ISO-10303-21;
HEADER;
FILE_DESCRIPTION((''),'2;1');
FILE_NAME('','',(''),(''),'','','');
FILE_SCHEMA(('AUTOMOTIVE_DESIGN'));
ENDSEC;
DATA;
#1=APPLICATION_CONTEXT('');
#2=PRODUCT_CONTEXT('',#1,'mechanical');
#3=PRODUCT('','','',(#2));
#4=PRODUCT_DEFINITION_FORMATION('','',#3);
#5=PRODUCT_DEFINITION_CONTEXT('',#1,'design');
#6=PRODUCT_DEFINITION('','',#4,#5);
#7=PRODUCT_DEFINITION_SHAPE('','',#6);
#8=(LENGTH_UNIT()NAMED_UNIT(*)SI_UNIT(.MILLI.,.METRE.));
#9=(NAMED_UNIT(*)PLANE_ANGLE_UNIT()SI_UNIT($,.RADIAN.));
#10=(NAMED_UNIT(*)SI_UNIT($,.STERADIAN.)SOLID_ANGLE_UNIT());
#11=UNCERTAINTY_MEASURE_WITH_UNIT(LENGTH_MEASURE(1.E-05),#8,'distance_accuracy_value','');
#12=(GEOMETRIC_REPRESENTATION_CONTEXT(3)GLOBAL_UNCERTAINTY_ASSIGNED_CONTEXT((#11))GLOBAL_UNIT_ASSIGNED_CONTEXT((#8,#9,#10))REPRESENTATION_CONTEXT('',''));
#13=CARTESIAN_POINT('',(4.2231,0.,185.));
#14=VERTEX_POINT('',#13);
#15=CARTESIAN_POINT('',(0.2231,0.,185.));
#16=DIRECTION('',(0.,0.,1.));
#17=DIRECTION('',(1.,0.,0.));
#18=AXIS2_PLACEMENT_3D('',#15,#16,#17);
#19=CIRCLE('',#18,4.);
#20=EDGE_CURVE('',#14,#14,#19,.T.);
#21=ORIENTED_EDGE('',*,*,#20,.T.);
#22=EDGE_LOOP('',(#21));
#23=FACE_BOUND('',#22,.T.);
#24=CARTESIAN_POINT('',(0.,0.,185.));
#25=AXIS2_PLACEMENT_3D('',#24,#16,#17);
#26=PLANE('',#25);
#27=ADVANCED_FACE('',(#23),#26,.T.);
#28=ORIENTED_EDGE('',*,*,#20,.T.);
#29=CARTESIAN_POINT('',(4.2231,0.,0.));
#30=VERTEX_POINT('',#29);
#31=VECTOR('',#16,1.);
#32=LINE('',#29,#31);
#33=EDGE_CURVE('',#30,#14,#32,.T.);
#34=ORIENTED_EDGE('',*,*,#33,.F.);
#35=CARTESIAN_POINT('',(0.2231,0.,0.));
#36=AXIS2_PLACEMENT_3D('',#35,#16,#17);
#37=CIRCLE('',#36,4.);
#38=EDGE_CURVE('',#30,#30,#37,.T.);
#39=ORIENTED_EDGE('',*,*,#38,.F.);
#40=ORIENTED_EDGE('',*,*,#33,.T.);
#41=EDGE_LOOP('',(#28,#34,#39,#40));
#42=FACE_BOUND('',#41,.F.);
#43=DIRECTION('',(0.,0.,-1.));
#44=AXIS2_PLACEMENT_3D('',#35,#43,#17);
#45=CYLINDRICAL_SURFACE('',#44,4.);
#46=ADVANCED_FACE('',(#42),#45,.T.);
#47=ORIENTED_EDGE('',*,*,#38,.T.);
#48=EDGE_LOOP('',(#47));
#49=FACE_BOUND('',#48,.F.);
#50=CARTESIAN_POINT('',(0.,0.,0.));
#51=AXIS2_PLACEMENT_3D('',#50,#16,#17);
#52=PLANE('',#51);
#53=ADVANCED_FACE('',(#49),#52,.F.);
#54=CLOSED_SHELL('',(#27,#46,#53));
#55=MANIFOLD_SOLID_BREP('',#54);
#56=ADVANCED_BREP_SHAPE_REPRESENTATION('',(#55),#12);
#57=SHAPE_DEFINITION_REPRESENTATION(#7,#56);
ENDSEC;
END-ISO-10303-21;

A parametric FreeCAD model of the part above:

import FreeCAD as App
import Part
import Sketcher
Q = App.Units.Quantity

doc = App.newDocument("Part")
body = doc.addObject("PartDesign::Body", "Body")

# Sketch on XY plane
sketch1 = doc.addObject("Sketcher::SketchObject", "Sketch")
body.addObject(sketch1)
sketch1.AttachmentSupport = (doc.XY_Plane, [""])
sketch1.MapMode = "FlatFace"
sketch1.addGeometry(Part.Circle(App.Vector(0.2, 0, 0), App.Vector(0, 0, 1), 4), False)
sketch1.addConstraint(Sketcher.Constraint("PointOnObject", 0, 3, -1))
sketch1.addConstraint(Sketcher.Constraint("Diameter", 0, Q("8 mm")))
sketch1.addConstraint(Sketcher.Constraint("DistanceX", -1, 1, 0, 3, Q("0.223 mm")))
pad1 = doc.addObject("PartDesign::Pad", "Pad")
body.addObject(pad1)
pad1.Profile = sketch1
pad1.Length = 185

doc.recompute()
